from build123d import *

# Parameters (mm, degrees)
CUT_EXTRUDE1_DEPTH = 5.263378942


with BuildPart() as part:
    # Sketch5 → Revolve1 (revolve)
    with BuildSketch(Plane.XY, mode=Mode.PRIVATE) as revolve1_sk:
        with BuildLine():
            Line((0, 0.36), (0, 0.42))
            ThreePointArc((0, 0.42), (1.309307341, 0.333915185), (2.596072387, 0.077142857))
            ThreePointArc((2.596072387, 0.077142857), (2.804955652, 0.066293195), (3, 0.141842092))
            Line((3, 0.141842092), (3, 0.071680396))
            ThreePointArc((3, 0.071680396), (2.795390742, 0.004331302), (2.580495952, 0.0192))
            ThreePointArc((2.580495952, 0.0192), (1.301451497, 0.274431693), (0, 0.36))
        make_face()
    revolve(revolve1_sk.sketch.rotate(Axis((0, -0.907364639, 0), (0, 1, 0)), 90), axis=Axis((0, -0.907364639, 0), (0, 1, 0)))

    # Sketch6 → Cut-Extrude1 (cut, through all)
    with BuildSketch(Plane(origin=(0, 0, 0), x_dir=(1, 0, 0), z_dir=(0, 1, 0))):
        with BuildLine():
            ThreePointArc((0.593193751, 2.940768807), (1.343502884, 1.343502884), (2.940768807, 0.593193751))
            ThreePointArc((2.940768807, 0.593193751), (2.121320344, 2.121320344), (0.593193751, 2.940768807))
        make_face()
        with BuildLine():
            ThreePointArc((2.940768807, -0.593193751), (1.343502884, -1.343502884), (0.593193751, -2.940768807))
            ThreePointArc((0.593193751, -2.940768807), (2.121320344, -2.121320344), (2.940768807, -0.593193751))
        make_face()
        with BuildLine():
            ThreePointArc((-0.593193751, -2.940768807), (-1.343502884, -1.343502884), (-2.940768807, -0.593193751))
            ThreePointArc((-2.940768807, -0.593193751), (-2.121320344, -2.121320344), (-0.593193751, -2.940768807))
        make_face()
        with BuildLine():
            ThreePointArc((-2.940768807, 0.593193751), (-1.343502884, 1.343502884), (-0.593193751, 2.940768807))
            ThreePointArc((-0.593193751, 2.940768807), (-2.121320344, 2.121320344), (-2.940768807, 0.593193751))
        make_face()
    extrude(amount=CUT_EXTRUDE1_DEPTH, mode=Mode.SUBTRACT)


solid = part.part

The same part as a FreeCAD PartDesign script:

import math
import FreeCAD as App
import Part
import Sketcher
Q = App.Units.Quantity

doc = App.newDocument("Part")
body = doc.addObject("PartDesign::Body", "Body")

sketch1 = body.newObject("Sketcher::SketchObject", "Sketch")
sketch1.AttachmentSupport = (doc.getObject("XY_Plane"), [""])
sketch1.MapMode = "FlatFace"
sketch1.addGeometry(Part.LineSegment(App.Vector(0, 0.42, 0), App.Vector(0, 0.36, 0)), False)
sketch1.addGeometry(Part.ArcOfCircle(Part.Circle(App.Vector(0, -9.58, 0), App.Vector(0, 0, 1), 9.94), math.radians(74.95), math.radians(90)), False)
sketch1.addGeometry(Part.ArcOfCircle(Part.Circle(App.Vector(2.73, 0.56, 0), App.Vector(0, 0, 1), 0.56), math.radians(-105), math.radians(-61)), False)
sketch1.addGeometry(Part.LineSegment(App.Vector(3, 0.07, 0), App.Vector(3, 0.14, 0)), False)
sketch1.addGeometry(Part.ArcOfCircle(Part.Circle(App.Vector(2.73, 0.56, 0), App.Vector(0, 0, 1), 0.5), math.radians(-105), math.radians(-57)), False)
sketch1.addGeometry(Part.ArcOfCircle(Part.Circle(App.Vector(0, -9.58, 0), App.Vector(0, 0, 1), 10), math.radians(74.95), math.radians(90)), False)
sketch1.addConstraint(Sketcher.Constraint("Coincident", 0, 2, 1, 2))
sketch1.addConstraint(Sketcher.Constraint("Tangent", 1, 1, 2, 1))
sketch1.addConstraint(Sketcher.Constraint("Coincident", 2, 2, 3, 1))
sketch1.addConstraint(Sketcher.Constraint("Coincident", 3, 2, 4, 2))
sketch1.addConstraint(Sketcher.Constraint("Tangent", 4, 1, 5, 1))
sketch1.addConstraint(Sketcher.Constraint("Coincident", 5, 2, 0, 1))
sketch1.addConstraint(Sketcher.Constraint("Vertical", 0))
sketch1.addConstraint(Sketcher.Constraint("Vertical", 3))
sketch1.addConstraint(Sketcher.Constraint("Coincident", 4, 3, 2, 3))
sketch1.addConstraint(Sketcher.Constraint("Coincident", 5, 3, 1, 3))
sketch1.addConstraint(Sketcher.Constraint("PointOnObject", 1, 3, -2))
sketch1.addConstraint(Sketcher.Constraint("PointOnObject", 0, 2, -2))
sketch1.addConstraint(Sketcher.Constraint("Radius", 5, Q("10 mm")))
sketch1.addConstraint(Sketcher.Constraint("Radius", 4, Q("0.5 mm")))
sketch1.addConstraint(Sketcher.Constraint("Radius", 1, Q("9.94 mm")))
sketch1.addConstraint(Sketcher.Constraint("DistanceX", -1, 1, 2, 2, Q("3 mm")))
sketch1.addConstraint(Sketcher.Constraint("DistanceY", 0, 2, 4, 3, Q("0.2 mm")))
sketch1.addConstraint(Sketcher.Constraint("DistanceY", 1, 3, -1, 1, Q("9.58 mm")))
revolution = body.newObject("PartDesign::Revolution", "Revolution")
revolution.Profile = sketch1
revolution.ReferenceAxis = (sketch1, ["V_Axis"])
revolution.Angle = 360

sketch2 = body.newObject("Sketcher::SketchObject", "Sketch001")
sketch2.AttachmentSupport = (doc.getObject("XZ_Plane"), [""])
sketch2.MapMode = "FlatFace"
sketch2.addGeometry(Part.ArcOfCircle(Part.Circle(App.Vector(3.2, -3.2, 0), App.Vector(0, 0, 1), 2.6), math.radians(95), math.radians(175)), False)
sketch2.addGeometry(Part.ArcOfCircle(Part.Circle(App.Vector(0, 0, 0), App.Vector(0, 0, 1), 3), math.radians(-79), math.radians(-11)), False)
sketch2.addGeometry(Part.ArcOfCircle(Part.Circle(App.Vector(3.2, 3.2, 0), App.Vector(0, 0, 1), 2.6), math.radians(-175), math.radians(-95)), False)
sketch2.addGeometry(Part.ArcOfCircle(Part.Circle(App.Vector(0, 0, 0), App.Vector(0, 0, 1), 3), math.radians(11), math.radians(79)), False)
sketch2.addGeometry(Part.ArcOfCircle(Part.Circle(App.Vector(-3.2, 3.2, 0), App.Vector(0, 0, 1), 2.6), math.radians(-85), math.radians(-5)), False)
sketch2.addGeometry(Part.ArcOfCircle(Part.Circle(App.Vector(0, 0, 0), App.Vector(0, 0, 1), 3), math.radians(101), math.radians(169)), False)
sketch2.addGeometry(Part.ArcOfCircle(Part.Circle(App.Vector(-3.2, -3.2, 0), App.Vector(0, 0, 1), 2.6), math.radians(5), math.radians(85)), False)
sketch2.addGeometry(Part.ArcOfCircle(Part.Circle(App.Vector(0, 0, 0), App.Vector(0, 0, 1), 3), math.radians(-169), math.radians(-101)), False)
sketch2.addConstraint(Sketcher.Constraint("Coincident", 0, 1, 1, 2))
sketch2.addConstraint(Sketcher.Constraint("Coincident", 1, 1, 0, 2))
sketch2.addConstraint(Sketcher.Constraint("Coincident", 2, 1, 3, 2))
sketch2.addConstraint(Sketcher.Constraint("Coincident", 3, 1, 2, 2))
sketch2.addConstraint(Sketcher.Constraint("Coincident", 4, 1, 5, 2))
sketch2.addConstraint(Sketcher.Constraint("Coincident", 5, 1, 4, 2))
sketch2.addConstraint(Sketcher.Constraint("Coincident", 6, 1, 7, 2))
sketch2.addConstraint(Sketcher.Constraint("Coincident", 7, 1, 6, 2))
sketch2.addConstraint(Sketcher.Constraint("Coincident", 1, 3, -1, 1))
sketch2.addConstraint(Sketcher.Constraint("Coincident", 3, 3, -1, 1))
sketch2.addConstraint(Sketcher.Constraint("Coincident", 5, 3, -1, 1))
sketch2.addConstraint(Sketcher.Constraint("Coincident", 7, 3, -1, 1))
sketch2.addConstraint(Sketcher.Constraint("Equal", 0, 2))
sketch2.addConstraint(Sketcher.Constraint("Equal", 1, 3))
sketch2.addConstraint(Sketcher.Constraint("Equal", 2, 4))
sketch2.addConstraint(Sketcher.Constraint("Equal", 3, 5))
sketch2.addConstraint(Sketcher.Constraint("Equal", 4, 6))
sketch2.addConstraint(Sketcher.Constraint("Equal", 5, 7))
sketch2.addConstraint(Sketcher.Constraint("Symmetric", 0, 3, 4, 3, -1, 1))
sketch2.addConstraint(Sketcher.Constraint("Symmetric", 2, 3, 6, 3, -1, 1))
sketch2.addConstraint(Sketcher.Constraint("Symmetric", 2, 3, 4, 3, -2))
sketch2.addConstraint(Sketcher.Constraint("Radius", 1, Q("3 mm")))
sketch2.addConstraint(Sketcher.Constraint("Radius", 0, Q("2.6 mm")))
sketch2.addConstraint(Sketcher.Constraint("DistanceX", -1, 1, 0, 3, Q("3.181981 mm")))
sketch2.addConstraint(Sketcher.Constraint("DistanceY", 0, 3, -1, 1, Q("3.181981 mm")))
pocket1 = body.newObject("PartDesign::Pocket", "Pocket")
pocket1.Profile = sketch2
pocket1.Type = "ThroughAll"

doc.recompute()
